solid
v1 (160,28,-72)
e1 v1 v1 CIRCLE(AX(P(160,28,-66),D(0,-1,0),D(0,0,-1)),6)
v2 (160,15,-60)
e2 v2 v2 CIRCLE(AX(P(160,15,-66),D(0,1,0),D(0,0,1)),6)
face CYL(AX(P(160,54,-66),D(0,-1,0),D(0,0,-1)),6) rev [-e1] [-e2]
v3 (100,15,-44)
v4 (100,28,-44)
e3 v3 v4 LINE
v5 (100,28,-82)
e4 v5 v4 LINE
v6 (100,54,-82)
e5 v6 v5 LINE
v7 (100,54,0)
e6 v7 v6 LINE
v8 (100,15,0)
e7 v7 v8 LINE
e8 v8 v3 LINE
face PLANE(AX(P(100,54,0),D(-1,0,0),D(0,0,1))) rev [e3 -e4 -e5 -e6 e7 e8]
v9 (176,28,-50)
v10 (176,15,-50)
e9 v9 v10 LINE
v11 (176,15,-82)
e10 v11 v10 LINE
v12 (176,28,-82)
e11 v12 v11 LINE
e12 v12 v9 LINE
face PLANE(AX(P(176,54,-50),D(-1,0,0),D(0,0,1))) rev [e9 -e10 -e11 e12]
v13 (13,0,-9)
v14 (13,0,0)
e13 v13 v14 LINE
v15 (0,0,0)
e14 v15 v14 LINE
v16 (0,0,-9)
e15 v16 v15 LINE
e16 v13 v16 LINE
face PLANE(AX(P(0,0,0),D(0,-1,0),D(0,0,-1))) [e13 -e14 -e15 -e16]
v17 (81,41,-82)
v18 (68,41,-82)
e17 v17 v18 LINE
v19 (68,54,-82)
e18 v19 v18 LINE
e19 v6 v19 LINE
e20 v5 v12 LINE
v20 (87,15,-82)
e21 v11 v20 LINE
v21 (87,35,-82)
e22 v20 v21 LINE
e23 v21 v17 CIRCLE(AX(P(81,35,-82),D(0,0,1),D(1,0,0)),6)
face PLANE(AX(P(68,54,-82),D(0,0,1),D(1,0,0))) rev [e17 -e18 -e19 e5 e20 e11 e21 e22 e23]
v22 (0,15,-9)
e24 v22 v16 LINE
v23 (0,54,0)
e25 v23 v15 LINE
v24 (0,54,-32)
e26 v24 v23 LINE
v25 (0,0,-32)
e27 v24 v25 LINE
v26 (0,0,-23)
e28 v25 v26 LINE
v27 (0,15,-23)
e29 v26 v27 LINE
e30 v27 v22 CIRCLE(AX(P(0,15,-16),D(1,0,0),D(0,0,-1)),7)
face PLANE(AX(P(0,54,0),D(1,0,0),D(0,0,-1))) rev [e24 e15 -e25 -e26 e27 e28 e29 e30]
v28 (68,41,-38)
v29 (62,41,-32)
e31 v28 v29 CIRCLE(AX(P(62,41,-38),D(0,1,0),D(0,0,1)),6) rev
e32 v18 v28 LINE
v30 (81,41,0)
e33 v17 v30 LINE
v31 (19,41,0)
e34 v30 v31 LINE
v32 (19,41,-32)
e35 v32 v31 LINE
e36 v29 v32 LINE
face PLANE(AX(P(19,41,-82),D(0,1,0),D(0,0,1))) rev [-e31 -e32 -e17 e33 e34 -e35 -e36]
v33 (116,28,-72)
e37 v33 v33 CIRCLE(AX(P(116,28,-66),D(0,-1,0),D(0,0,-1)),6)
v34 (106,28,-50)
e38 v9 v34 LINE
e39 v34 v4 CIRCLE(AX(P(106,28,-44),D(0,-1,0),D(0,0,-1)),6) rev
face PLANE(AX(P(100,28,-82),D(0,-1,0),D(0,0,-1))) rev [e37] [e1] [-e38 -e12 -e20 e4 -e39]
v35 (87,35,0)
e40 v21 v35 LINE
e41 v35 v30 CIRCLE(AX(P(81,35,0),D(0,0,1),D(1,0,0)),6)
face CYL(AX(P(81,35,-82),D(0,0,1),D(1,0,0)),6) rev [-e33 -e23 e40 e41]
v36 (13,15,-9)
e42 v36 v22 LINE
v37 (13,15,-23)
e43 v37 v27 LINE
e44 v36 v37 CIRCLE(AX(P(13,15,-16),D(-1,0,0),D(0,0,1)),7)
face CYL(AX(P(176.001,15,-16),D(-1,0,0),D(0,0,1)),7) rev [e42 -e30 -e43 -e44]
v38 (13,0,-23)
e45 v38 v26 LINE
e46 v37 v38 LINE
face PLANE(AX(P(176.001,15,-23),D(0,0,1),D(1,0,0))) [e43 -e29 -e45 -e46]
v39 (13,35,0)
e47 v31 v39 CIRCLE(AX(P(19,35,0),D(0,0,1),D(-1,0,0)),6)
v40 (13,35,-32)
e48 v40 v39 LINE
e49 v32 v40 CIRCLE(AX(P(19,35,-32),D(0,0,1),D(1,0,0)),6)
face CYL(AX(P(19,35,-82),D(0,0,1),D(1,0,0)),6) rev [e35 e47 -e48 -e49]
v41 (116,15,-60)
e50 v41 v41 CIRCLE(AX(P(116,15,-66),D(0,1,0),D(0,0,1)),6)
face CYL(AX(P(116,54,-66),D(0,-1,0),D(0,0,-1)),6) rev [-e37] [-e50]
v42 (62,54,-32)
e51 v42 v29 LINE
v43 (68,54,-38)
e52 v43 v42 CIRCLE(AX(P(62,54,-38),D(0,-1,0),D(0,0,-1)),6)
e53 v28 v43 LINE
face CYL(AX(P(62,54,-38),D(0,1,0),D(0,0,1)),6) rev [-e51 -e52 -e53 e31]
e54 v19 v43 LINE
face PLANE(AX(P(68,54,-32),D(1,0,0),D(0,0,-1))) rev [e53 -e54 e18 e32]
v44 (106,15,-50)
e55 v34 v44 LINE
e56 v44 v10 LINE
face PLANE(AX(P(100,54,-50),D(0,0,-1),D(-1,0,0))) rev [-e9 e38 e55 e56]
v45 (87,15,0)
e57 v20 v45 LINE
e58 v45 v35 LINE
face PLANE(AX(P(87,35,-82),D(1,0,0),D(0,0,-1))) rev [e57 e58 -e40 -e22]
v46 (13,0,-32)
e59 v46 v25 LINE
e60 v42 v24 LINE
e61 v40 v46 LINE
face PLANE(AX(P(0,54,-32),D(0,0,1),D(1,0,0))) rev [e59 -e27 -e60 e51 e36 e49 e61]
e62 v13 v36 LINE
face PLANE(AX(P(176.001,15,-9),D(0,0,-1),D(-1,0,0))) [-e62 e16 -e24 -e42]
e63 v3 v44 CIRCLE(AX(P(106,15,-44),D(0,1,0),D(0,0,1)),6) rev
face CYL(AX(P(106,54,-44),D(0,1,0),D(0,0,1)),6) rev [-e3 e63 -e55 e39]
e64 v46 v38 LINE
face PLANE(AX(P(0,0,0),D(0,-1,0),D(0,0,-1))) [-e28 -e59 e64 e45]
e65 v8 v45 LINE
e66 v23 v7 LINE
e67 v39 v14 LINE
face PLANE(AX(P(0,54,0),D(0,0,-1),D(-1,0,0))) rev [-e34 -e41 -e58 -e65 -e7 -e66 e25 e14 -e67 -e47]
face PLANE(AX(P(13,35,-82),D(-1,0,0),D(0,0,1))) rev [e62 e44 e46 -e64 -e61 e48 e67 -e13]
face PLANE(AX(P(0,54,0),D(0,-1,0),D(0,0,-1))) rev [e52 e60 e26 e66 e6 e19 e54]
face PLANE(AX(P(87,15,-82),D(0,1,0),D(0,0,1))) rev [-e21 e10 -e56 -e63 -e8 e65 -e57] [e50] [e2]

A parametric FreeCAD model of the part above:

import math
import FreeCAD as App
import Part
import Sketcher
from FreeCAD import Vector


def edges_at(feature, points):
    """Names of the edges that pass closest to the given points."""
    edges = feature.Shape.Edges
    near = lambda p: min(range(len(edges)), key=lambda i: edges[i].distToShape(Part.Vertex(*p))[0])
    return sorted({f"Edge{near(p) + 1}" for p in points})

doc = App.newDocument("Part")
body = doc.addObject("PartDesign::Body", "Body")

# Sketch on XZ plane
sketch1 = body.newObject("Sketcher::SketchObject", "Sketch")
sketch1.AttachmentSupport = (doc.getObject("XZ_Plane"), [""])
sketch1.MapMode = "FlatFace"
sketch1.addGeometry(Part.LineSegment(Vector(68, -32, 0), Vector(0, -32, 0)), False)
sketch1.addGeometry(Part.LineSegment(Vector(0, -32, 0), Vector(0, 0, 0)), False)
sketch1.addGeometry(Part.LineSegment(Vector(0, 0, 0), Vector(100, 0, 0)), False)
sketch1.addGeometry(Part.LineSegment(Vector(100, 0, 0), Vector(100, -50, 0)), False)
sketch1.addGeometry(Part.LineSegment(Vector(100, -50, 0), Vector(176, -50, 0)), False)
sketch1.addGeometry(Part.LineSegment(Vector(176, -50, 0), Vector(176, -82, 0)), False)
sketch1.addGeometry(Part.LineSegment(Vector(176, -82, 0), Vector(68, -82, 0)), False)
sketch1.addGeometry(Part.LineSegment(Vector(68, -82, 0), Vector(68, -32, 0)), False)
sketch1.addGeometry(Part.Circle(Vector(160, -66, 0), Vector(0, 0, 1), 6), False)
sketch1.addGeometry(Part.Circle(Vector(116, -66, 0), Vector(0, 0, 1), 6), False)
sketch1.addConstraint(Sketcher.Constraint("Coincident", 0, 2, 1, 1))
sketch1.addConstraint(Sketcher.Constraint("Coincident", 1, 2, 2, 1))
sketch1.addConstraint(Sketcher.Constraint("Coincident", 2, 2, 3, 1))
sketch1.addConstraint(Sketcher.Constraint("Coincident", 3, 2, 4, 1))
sketch1.addConstraint(Sketcher.Constraint("Coincident", 4, 2, 5, 1))
sketch1.addConstraint(Sketcher.Constraint("Coincident", 5, 2, 6, 1))
sketch1.addConstraint(Sketcher.Constraint("Coincident", 6, 2, 7, 1))
sketch1.addConstraint(Sketcher.Constraint("Coincident", 7, 2, 0, 1))
sketch1.addConstraint(Sketcher.Constraint("Horizontal", 0))
sketch1.addConstraint(Sketcher.Constraint("Vertical", 1))
sketch1.addConstraint(Sketcher.Constraint("Horizontal", 2))
sketch1.addConstraint(Sketcher.Constraint("Vertical", 3))
sketch1.addConstraint(Sketcher.Constraint("Horizontal", 4))
sketch1.addConstraint(Sketcher.Constraint("Vertical", 5))
sketch1.addConstraint(Sketcher.Constraint("Horizontal", 6))
sketch1.addConstraint(Sketcher.Constraint("Vertical", 7))
sketch1.addConstraint(Sketcher.Constraint("Coincident", 1, 2, -1, 1))
sketch1.addConstraint(Sketcher.Constraint("Equal", 8, 9))
sketch1.addConstraint(Sketcher.Constraint("Horizontal", 8, 3, 9, 3))
sketch1.addConstraint(Sketcher.Constraint("Equal", 1, 5))
sketch1.addConstraint(Sketcher.Constraint("Diameter", 8, 12.0))
sketch1.addConstraint(Sketcher.Constraint("DistanceX", 0, 2, 0, 1, 68.0))
sketch1.addConstraint(Sketcher.Constraint("DistanceX", 2, 1, 2, 2, 100.0))
sketch1.addConstraint(Sketcher.Constraint("DistanceX", 4, 1, 4, 2, 76.0))
sketch1.addConstraint(Sketcher.Constraint("DistanceY", 1, 1, 1, 2, 32.0))
sketch1.addConstraint(Sketcher.Constraint("DistanceY", 3, 2, 3, 1, 50.0))
sketch1.addConstraint(Sketcher.Constraint("DistanceX", -1, 1, 8, 3, 160.0))
sketch1.addConstraint(Sketcher.Constraint("DistanceY", 8, 3, -1, 1, 66.0))
sketch1.addConstraint(Sketcher.Constraint("DistanceX", -1, 1, 9, 3, 116.0))
pad1 = body.newObject("PartDesign::Pad", "Pad")
pad1.Profile = sketch1
pad1.Length = 54
pad1.Reversed = True
doc.recompute()

fillet = body.newObject("PartDesign::Fillet", "Fillet")
fillet.Base = (pad1, edges_at(pad1, [(68, 27, -32), (100, 27, -50)]))
fillet.Radius = 6

# Sketch on XY plane
sketch2 = body.newObject("Sketcher::SketchObject", "Sketch001")
sketch2.AttachmentSupport = (doc.getObject("XY_Plane"), [""])
sketch2.MapMode = "FlatFace"
sketch2.addGeometry(Part.LineSegment(Vector(87, 15, 0), Vector(87, 35, 0)), False)
sketch2.addGeometry(Part.ArcOfCircle(Part.Circle(Vector(81, 35, 0), Vector(0, 0, 1), 6), math.radians(0), math.radians(90)), False)
sketch2.addGeometry(Part.LineSegment(Vector(81, 41, 0), Vector(19, 41, 0)), False)
sketch2.addGeometry(Part.ArcOfCircle(Part.Circle(Vector(19, 35, 0), Vector(0, 0, 1), 6), math.radians(90), math.radians(180)), False)
sketch2.addGeometry(Part.LineSegment(Vector(13, 35, 0), Vector(13, 0, 0)), False)
sketch2.addGeometry(Part.LineSegment(Vector(13, 0, 0), Vector(176, 0, 0)), False)
sketch2.addGeometry(Part.LineSegment(Vector(176, 0, 0), Vector(176, 15, 0)), False)
sketch2.addGeometry(Part.LineSegment(Vector(176, 15, 0), Vector(87, 15, 0)), False)
sketch2.addGeometry(Part.LineSegment(Vector(100, 54, 0), Vector(100, 28, 0)), False)
sketch2.addGeometry(Part.LineSegment(Vector(100, 28, 0), Vector(176, 28, 0)), False)
sketch2.addGeometry(Part.LineSegment(Vector(176, 28, 0), Vector(176, 54, 0)), False)
sketch2.addGeometry(Part.LineSegment(Vector(176, 54, 0), Vector(100, 54, 0)), False)
sketch2.addConstraint(Sketcher.Constraint("Tangent", 0, 2, 1, 1))
sketch2.addConstraint(Sketcher.Constraint("Tangent", 1, 2, 2, 1))
sketch2.addConstraint(Sketcher.Constraint("Tangent", 2, 2, 3, 1))
sketch2.addConstraint(Sketcher.Constraint("Tangent", 3, 2, 4, 1))
sketch2.addConstraint(Sketcher.Constraint("Coincident", 4, 2, 5, 1))
sketch2.addConstraint(Sketcher.Constraint("Coincident", 5, 2, 6, 1))
sketch2.addConstraint(Sketcher.Constraint("Coincident", 6, 2, 7, 1))
sketch2.addConstraint(Sketcher.Constraint("Coincident", 7, 2, 0, 1))
sketch2.addConstraint(Sketcher.Constraint("Coincident", 8, 2, 9, 1))
sketch2.addConstraint(Sketcher.Constraint("Coincident", 9, 2, 10, 1))
sketch2.addConstraint(Sketcher.Constraint("Coincident", 10, 2, 11, 1))
sketch2.addConstraint(Sketcher.Constraint("Coincident", 11, 2, 8, 1))
sketch2.addConstraint(Sketcher.Constraint("Vertical", 0))
sketch2.addConstraint(Sketcher.Constraint("Horizontal", 2))
sketch2.addConstraint(Sketcher.Constraint("Vertical", 4))
sketch2.addConstraint(Sketcher.Constraint("Horizontal", 5))
sketch2.addConstraint(Sketcher.Constraint("Vertical", 6))
sketch2.addConstraint(Sketcher.Constraint("Horizontal", 7))
sketch2.addConstraint(Sketcher.Constraint("Vertical", 8))
sketch2.addConstraint(Sketcher.Constraint("Horizontal", 9))
sketch2.addConstraint(Sketcher.Constraint("Vertical", 10))
sketch2.addConstraint(Sketcher.Constraint("Horizontal", 11))
sketch2.addConstraint(Sketcher.Constraint("Equal", 1, 3))
sketch2.addConstraint(Sketcher.Constraint("PointOnObject", 4, 2, -1))
sketch2.addConstraint(Sketcher.Constraint("Vertical", 6, 2, 9, 2))
sketch2.addConstraint(Sketcher.Constraint("Radius", 1, 6.0))
sketch2.addConstraint(Sketcher.Constraint("DistanceX", 2, 2, 2, 1, 62.0))
sketch2.addConstraint(Sketcher.Constraint("DistanceX", 5, 1, 5, 2, 163.0))
sketch2.addConstraint(Sketcher.Constraint("DistanceX", 9, 1, 9, 2, 76.0))
sketch2.addConstraint(Sketcher.Constraint("DistanceY", 0, 1, 0, 2, 20.0))
sketch2.addConstraint(Sketcher.Constraint("DistanceY", 4, 2, 4, 1, 35.0))
sketch2.addConstraint(Sketcher.Constraint("DistanceY", 8, 2, 8, 1, 26.0))
sketch2.addConstraint(Sketcher.Constraint("DistanceX", -1, 1, 1, 3, 81.0))
sketch2.addConstraint(Sketcher.Constraint("DistanceY", -1, 1, 8, 2, 28.0))
pocket1 = body.newObject("PartDesign::Pocket", "Pocket")
pocket1.Profile = sketch2
pocket1.Type = "ThroughAll"

# Sketch on YZ plane
sketch3 = body.newObject("Sketcher::SketchObject", "Sketch002")
sketch3.AttachmentSupport = (doc.getObject("YZ_Plane"), [""])
sketch3.MapMode = "FlatFace"
sketch3.addGeometry(Part.LineSegment(Vector(0, -23, 0), Vector(15, -23, 0)), False)
sketch3.addGeometry(Part.ArcOfCircle(Part.Circle(Vector(15, -16, 0), Vector(0, 0, 1), 7), math.radians(-90), math.radians(90)), False)
sketch3.addGeometry(Part.LineSegment(Vector(15, -9, 0), Vector(0, -9, 0)), False)
sketch3.addGeometry(Part.LineSegment(Vector(0, -9, 0), Vector(0, -23, 0)), False)
sketch3.addConstraint(Sketcher.Constraint("Tangent", 0, 2, 1, 1))
sketch3.addConstraint(Sketcher.Constraint("Tangent", 1, 2, 2, 1))
sketch3.addConstraint(Sketcher.Constraint("Coincident", 2, 2, 3, 1))
sketch3.addConstraint(Sketcher.Constraint("Coincident", 3, 2, 0, 1))
sketch3.addConstraint(Sketcher.Constraint("Horizontal", 0))
sketch3.addConstraint(Sketcher.Constraint("Horizontal", 2))
sketch3.addConstraint(Sketcher.Constraint("Vertical", 3))
sketch3.addConstraint(Sketcher.Constraint("PointOnObject", 2, 2, -2))
sketch3.addConstraint(Sketcher.Constraint("Radius", 1, 7.0))
sketch3.addConstraint(Sketcher.Constraint("DistanceX", 0, 1, 0, 2, 15.0))
sketch3.addConstraint(Sketcher.Constraint("DistanceY", 1, 3, -1, 1, 16.0))
pocket2 = body.newObject("PartDesign::Pocket", "Pocket001")
pocket2.Profile = sketch3
pocket2.Type = "UpToFirst"
pocket2.Reversed = True

doc.recompute()
